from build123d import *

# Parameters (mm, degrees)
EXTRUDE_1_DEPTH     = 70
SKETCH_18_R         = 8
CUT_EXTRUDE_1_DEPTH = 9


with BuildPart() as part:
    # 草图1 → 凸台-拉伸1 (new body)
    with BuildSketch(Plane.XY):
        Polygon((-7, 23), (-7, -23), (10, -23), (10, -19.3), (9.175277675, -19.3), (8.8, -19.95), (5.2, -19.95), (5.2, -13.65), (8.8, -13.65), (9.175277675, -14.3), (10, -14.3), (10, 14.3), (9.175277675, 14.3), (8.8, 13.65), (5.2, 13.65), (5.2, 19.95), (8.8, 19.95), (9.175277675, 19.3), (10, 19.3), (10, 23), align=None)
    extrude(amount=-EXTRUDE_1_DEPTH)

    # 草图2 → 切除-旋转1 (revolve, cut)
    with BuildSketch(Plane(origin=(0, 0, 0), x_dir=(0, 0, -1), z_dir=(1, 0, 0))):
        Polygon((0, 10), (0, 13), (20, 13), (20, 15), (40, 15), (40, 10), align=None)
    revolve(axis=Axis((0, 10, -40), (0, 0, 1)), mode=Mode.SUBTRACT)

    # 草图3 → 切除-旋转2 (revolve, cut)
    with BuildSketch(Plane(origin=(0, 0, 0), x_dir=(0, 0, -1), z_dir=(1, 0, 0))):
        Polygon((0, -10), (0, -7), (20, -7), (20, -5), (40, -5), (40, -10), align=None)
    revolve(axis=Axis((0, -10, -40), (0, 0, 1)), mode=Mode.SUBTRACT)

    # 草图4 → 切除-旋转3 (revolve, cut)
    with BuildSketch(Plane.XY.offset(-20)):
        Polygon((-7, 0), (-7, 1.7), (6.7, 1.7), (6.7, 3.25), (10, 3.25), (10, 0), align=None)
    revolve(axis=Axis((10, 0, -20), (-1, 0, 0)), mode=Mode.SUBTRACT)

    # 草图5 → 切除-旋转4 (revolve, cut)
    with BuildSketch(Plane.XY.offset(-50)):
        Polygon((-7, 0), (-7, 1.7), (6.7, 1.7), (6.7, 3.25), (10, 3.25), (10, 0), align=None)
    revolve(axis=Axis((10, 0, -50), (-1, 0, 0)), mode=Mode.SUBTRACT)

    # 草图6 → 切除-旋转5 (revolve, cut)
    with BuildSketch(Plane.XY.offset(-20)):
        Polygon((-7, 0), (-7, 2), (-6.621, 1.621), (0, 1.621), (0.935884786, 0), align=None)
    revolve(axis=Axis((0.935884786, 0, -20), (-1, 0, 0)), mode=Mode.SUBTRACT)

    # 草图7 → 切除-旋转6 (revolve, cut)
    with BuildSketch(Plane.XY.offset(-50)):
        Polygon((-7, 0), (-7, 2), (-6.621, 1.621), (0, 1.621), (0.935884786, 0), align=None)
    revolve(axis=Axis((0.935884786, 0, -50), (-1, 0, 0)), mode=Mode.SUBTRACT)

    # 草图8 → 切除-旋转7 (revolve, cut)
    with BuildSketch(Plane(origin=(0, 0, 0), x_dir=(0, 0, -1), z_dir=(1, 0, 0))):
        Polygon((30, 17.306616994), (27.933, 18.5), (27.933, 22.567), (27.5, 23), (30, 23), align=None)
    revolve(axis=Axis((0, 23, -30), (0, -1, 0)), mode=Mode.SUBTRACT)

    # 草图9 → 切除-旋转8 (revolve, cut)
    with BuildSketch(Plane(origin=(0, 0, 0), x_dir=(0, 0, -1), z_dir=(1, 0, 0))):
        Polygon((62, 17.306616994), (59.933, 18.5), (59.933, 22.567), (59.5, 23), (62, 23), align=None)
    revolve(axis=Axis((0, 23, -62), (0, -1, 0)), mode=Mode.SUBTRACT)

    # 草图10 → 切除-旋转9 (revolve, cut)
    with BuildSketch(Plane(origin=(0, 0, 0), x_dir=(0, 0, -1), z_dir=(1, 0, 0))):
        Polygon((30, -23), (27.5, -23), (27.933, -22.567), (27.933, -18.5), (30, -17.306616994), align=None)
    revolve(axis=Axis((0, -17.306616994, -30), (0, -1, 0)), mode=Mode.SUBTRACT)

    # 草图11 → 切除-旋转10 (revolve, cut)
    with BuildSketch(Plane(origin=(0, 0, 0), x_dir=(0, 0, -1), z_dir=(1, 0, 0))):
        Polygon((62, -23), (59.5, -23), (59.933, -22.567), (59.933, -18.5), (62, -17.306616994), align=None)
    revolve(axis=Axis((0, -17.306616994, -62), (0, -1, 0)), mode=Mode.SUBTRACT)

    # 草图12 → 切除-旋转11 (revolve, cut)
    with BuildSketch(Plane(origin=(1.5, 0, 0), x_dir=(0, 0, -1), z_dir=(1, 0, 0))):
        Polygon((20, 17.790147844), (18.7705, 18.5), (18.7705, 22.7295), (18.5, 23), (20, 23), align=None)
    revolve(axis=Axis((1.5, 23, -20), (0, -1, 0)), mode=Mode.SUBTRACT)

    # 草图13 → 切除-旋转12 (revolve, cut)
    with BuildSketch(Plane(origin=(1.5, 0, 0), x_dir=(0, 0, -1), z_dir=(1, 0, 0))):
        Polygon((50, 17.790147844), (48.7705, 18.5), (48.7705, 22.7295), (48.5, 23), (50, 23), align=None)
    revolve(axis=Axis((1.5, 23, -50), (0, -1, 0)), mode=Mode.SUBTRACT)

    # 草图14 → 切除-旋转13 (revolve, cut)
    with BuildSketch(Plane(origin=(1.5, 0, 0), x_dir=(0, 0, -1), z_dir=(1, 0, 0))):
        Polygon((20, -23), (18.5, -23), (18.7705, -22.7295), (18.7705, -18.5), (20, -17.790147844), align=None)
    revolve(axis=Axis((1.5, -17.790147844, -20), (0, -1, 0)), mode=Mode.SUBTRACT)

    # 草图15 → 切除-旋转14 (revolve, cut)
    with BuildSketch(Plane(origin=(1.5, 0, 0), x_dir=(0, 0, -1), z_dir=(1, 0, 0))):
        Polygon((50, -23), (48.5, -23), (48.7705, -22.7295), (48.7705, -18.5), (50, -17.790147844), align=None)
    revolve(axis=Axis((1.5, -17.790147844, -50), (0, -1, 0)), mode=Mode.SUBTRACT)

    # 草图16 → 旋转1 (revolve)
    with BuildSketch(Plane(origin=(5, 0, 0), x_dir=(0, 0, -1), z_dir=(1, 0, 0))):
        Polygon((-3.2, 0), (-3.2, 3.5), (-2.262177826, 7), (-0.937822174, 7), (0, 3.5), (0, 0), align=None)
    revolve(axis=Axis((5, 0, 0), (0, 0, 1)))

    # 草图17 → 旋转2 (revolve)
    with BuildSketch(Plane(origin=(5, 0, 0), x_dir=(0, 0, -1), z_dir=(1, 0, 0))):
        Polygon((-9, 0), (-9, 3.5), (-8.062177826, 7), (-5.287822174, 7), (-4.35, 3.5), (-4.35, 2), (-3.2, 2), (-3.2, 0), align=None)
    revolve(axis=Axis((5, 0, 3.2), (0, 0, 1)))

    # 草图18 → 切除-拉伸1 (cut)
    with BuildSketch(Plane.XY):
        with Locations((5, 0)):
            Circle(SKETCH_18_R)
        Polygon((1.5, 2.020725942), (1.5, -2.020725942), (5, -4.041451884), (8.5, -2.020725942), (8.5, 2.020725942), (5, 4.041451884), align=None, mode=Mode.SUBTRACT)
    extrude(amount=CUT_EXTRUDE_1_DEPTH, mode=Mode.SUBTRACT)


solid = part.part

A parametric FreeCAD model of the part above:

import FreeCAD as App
import Part
import Sketcher
Q = App.Units.Quantity

doc = App.newDocument("Part")
body = doc.addObject("PartDesign::Body", "Body")

sketch1 = body.newObject("Sketcher::SketchObject", "Sketch")
sketch1.AttachmentSupport = (doc.getObject("XY_Plane"), [""])
sketch1.MapMode = "FlatFace"
sketch1.addGeometry([
    Part.LineSegment(App.Vector(-7, 23, 0), App.Vector(-7, -23, 0)),
    Part.LineSegment(App.Vector(-7, -23, 0), App.Vector(10, -23, 0)),
    Part.LineSegment(App.Vector(10, -23, 0), App.Vector(10, -19.3, 0)),
    Part.LineSegment(App.Vector(10, -19.3, 0), App.Vector(9.2, -19.3, 0)),
    Part.LineSegment(App.Vector(9.2, -19.3, 0), App.Vector(8.8, -19.9, 0)),
    Part.LineSegment(App.Vector(8.8, -19.9, 0), App.Vector(5.2, -19.9, 0)),
    Part.LineSegment(App.Vector(5.2, -19.9, 0), App.Vector(5.2, -13.7, 0)),
    Part.LineSegment(App.Vector(5.2, -13.7, 0), App.Vector(8.8, -13.7, 0)),
    Part.LineSegment(App.Vector(8.8, -13.7, 0), App.Vector(9.2, -14.3, 0)),
    Part.LineSegment(App.Vector(9.2, -14.3, 0), App.Vector(10, -14.3, 0)),
    Part.LineSegment(App.Vector(10, -14.3, 0), App.Vector(10, 14.3, 0)),
    Part.LineSegment(App.Vector(10, 14.3, 0), App.Vector(9.2, 14.3, 0)),
    Part.LineSegment(App.Vector(9.2, 14.3, 0), App.Vector(8.8, 13.7, 0)),
    Part.LineSegment(App.Vector(8.8, 13.7, 0), App.Vector(5.2, 13.7, 0)),
    Part.LineSegment(App.Vector(5.2, 13.7, 0), App.Vector(5.2, 19.9, 0)),
    Part.LineSegment(App.Vector(5.2, 19.9, 0), App.Vector(8.8, 19.9, 0)),
    Part.LineSegment(App.Vector(8.8, 19.9, 0), App.Vector(9.2, 19.3, 0)),
    Part.LineSegment(App.Vector(9.2, 19.3, 0), App.Vector(10, 19.3, 0)),
    Part.LineSegment(App.Vector(10, 19.3, 0), App.Vector(10, 23, 0)),
    Part.LineSegment(App.Vector(10, 23, 0), App.Vector(-7, 23, 0)),
], False)
sketch1.addConstraint([
    Sketcher.Constraint("Coincident", 0, 2, 1, 1),
    Sketcher.Constraint("Coincident", 1, 2, 2, 1),
    Sketcher.Constraint("Coincident", 2, 2, 3, 1),
    Sketcher.Constraint("Coincident", 3, 2, 4, 1),
    Sketcher.Constraint("Coincident", 4, 2, 5, 1),
    Sketcher.Constraint("Coincident", 5, 2, 6, 1),
    Sketcher.Constraint("Coincident", 6, 2, 7, 1),
    Sketcher.Constraint("Coincident", 7, 2, 8, 1),
    Sketcher.Constraint("Coincident", 8, 2, 9, 1),
    Sketcher.Constraint("Coincident", 9, 2, 10, 1),
    Sketcher.Constraint("Coincident", 10, 2, 11, 1),
    Sketcher.Constraint("Coincident", 11, 2, 12, 1),
    Sketcher.Constraint("Coincident", 12, 2, 13, 1),
    Sketcher.Constraint("Coincident", 13, 2, 14, 1),
    Sketcher.Constraint("Coincident", 14, 2, 15, 1),
    Sketcher.Constraint("Coincident", 15, 2, 16, 1),
    Sketcher.Constraint("Coincident", 16, 2, 17, 1),
    Sketcher.Constraint("Coincident", 17, 2, 18, 1),
    Sketcher.Constraint("Coincident", 18, 2, 19, 1),
    Sketcher.Constraint("Coincident", 19, 2, 0, 1),
    Sketcher.Constraint("Vertical", 0),
    Sketcher.Constraint("Horizontal", 1),
    Sketcher.Constraint("Vertical", 2),
    Sketcher.Constraint("Horizontal", 3),
    Sketcher.Constraint("Horizontal", 5),
    Sketcher.Constraint("Vertical", 6),
    Sketcher.Constraint("Horizontal", 7),
    Sketcher.Constraint("Horizontal", 9),
    Sketcher.Constraint("Vertical", 10),
    Sketcher.Constraint("Horizontal", 11),
    Sketcher.Constraint("Horizontal", 13),
    Sketcher.Constraint("Vertical", 14),
    Sketcher.Constraint("Horizontal", 15),
    Sketcher.Constraint("Horizontal", 17),
    Sketcher.Constraint("Vertical", 18),
    Sketcher.Constraint("Horizontal", 19),
    Sketcher.Constraint("Symmetric", 8, 2, 11, 2, -1),
    Sketcher.Constraint("Symmetric", 7, 2, 12, 2, -1),
    Sketcher.Constraint("Symmetric", 5, 2, 14, 2, -1),
    Sketcher.Constraint("Symmetric", 3, 2, 16, 2, -1),
    Sketcher.Constraint("Symmetric", 1, 2, 18, 2, -1),
    Sketcher.Constraint("Parallel", 4, 12),
    Sketcher.Constraint("Parallel", 8, 16),
    Sketcher.Constraint("Vertical", 4, 2, 7, 2),
    Sketcher.Constraint("Vertical", 3, 2, 8, 2),
    Sketcher.Constraint("Vertical", 2, 2, 9, 2),
    Sketcher.Constraint("DistanceX", 1, 1, 1, 2, Q("17 mm")),
    Sketcher.Constraint("DistanceY", 0, 2, 0, 1, Q("46 mm")),
    Sketcher.Constraint("Angle", 4, Q("-120 deg")),
    Sketcher.Constraint("DistanceX", 5, 2, 5, 1, Q("3.6 mm")),
    Sketcher.Constraint("DistanceY", 2, 1, 2, 2, Q("3.7 mm")),
    Sketcher.Constraint("DistanceY", 6, 1, 6, 2, Q("6.3 mm")),
    Sketcher.Constraint("DistanceY", 10, 1, 10, 2, Q("28.6 mm")),
    Sketcher.Constraint("DistanceX", 0, 2, -1, 1, Q("7 mm")),
    Sketcher.Constraint("DistanceX", -1, 1, 4, 2, Q("8.8 mm")),
])
pad1 = body.newObject("PartDesign::Pad", "Pad")
pad1.Profile = sketch1
pad1.Length = 70
pad1.Reversed = True

sketch2 = body.newObject("Sketcher::SketchObject", "Sketch001")
sketch2.AttachmentSupport = (doc.getObject("YZ_Plane"), [""])
sketch2.MapMode = "FlatFace"
sketch2.addGeometry([
    Part.LineSegment(App.Vector(13, 0, 0), App.Vector(10, 0, 0)),
    Part.LineSegment(App.Vector(10, 0, 0), App.Vector(10, -40, 0)),
    Part.LineSegment(App.Vector(10, -40, 0), App.Vector(15, -40, 0)),
    Part.LineSegment(App.Vector(15, -40, 0), App.Vector(15, -20, 0)),
    Part.LineSegment(App.Vector(15, -20, 0), App.Vector(13, -20, 0)),
    Part.LineSegment(App.Vector(13, -20, 0), App.Vector(13, 0, 0)),
], False)
sketch2.addGeometry(Part.LineSegment(App.Vector(10, -40, 0), App.Vector(10, 0, 0)), True)
sketch2.addConstraint([
    Sketcher.Constraint("Coincident", 0, 2, 1, 1),
    Sketcher.Constraint("Coincident", 1, 2, 2, 1),
    Sketcher.Constraint("Coincident", 2, 2, 3, 1),
    Sketcher.Constraint("Coincident", 3, 2, 4, 1),
    Sketcher.Constraint("Coincident", 4, 2, 5, 1),
    Sketcher.Constraint("Coincident", 5, 2, 0, 1),
    Sketcher.Constraint("Horizontal", 0),
    Sketcher.Constraint("Vertical", 1),
    Sketcher.Constraint("Horizontal", 2),
    Sketcher.Constraint("Vertical", 3),
    Sketcher.Constraint("Horizontal", 4),
    Sketcher.Constraint("Vertical", 5),
    Sketcher.Constraint("Vertical", 6),
    Sketcher.Constraint("Coincident", 6, 1, 1, 2),
    Sketcher.Constraint("PointOnObject", 0, 2, -1),
    Sketcher.Constraint("PointOnObject", 6, 2, -1),
    Sketcher.Constraint("Equal", 3, 5),
    Sketcher.Constraint("DistanceX", 0, 2, 0, 1, Q("3 mm")),
    Sketcher.Constraint("DistanceX", 2, 1, 2, 2, Q("5 mm")),
    Sketcher.Constraint("DistanceY", 1, 2, 1, 1, Q("40 mm")),
    Sketcher.Constraint("DistanceX", -1, 1, 0, 2, Q("10 mm")),
])
groove = body.newObject("PartDesign::Groove", "Groove")
groove.Profile = sketch2
groove.ReferenceAxis = (sketch2, ["Axis0"])
groove.Angle = 360

sketch3 = body.newObject("Sketcher::SketchObject", "Sketch002")
sketch3.AttachmentSupport = (doc.getObject("YZ_Plane"), [""])
sketch3.MapMode = "FlatFace"
sketch3.addGeometry([
    Part.LineSegment(App.Vector(-7, 0, 0), App.Vector(-10, 0, 0)),
    Part.LineSegment(App.Vector(-10, 0, 0), App.Vector(-10, -40, 0)),
    Part.LineSegment(App.Vector(-10, -40, 0), App.Vector(-5, -40, 0)),
    Part.LineSegment(App.Vector(-5, -40, 0), App.Vector(-5, -20, 0)),
    Part.LineSegment(App.Vector(-5, -20, 0), App.Vector(-7, -20, 0)),
    Part.LineSegment(App.Vector(-7, -20, 0), App.Vector(-7, 0, 0)),
], False)
sketch3.addGeometry(Part.LineSegment(App.Vector(-10, -40, 0), App.Vector(-10, 0, 0)), True)
sketch3.addConstraint([
    Sketcher.Constraint("Coincident", 0, 2, 1, 1),
    Sketcher.Constraint("Coincident", 1, 2, 2, 1),
    Sketcher.Constraint("Coincident", 2, 2, 3, 1),
    Sketcher.Constraint("Coincident", 3, 2, 4, 1),
    Sketcher.Constraint("Coincident", 4, 2, 5, 1),
    Sketcher.Constraint("Coincident", 5, 2, 0, 1),
    Sketcher.Constraint("Horizontal", 0),
    Sketcher.Constraint("Vertical", 1),
    Sketcher.Constraint("Horizontal", 2),
    Sketcher.Constraint("Vertical", 3),
    Sketcher.Constraint("Horizontal", 4),
    Sketcher.Constraint("Vertical", 5),
    Sketcher.Constraint("Vertical", 6),
    Sketcher.Constraint("Coincident", 6, 1, 1, 2),
    Sketcher.Constraint("PointOnObject", 0, 2, -1),
    Sketcher.Constraint("PointOnObject", 6, 2, -1),
    Sketcher.Constraint("Equal", 3, 5),
    Sketcher.Constraint("DistanceX", 0, 2, 0, 1, Q("3 mm")),
    Sketcher.Constraint("DistanceX", 2, 1, 2, 2, Q("5 mm")),
    Sketcher.Constraint("DistanceY", 1, 2, 1, 1, Q("40 mm")),
    Sketcher.Constraint("DistanceX", 0, 2, -1, 1, Q("10 mm")),
])
groove2 = body.newObject("PartDesign::Groove", "Groove001")
groove2.Profile = sketch3
groove2.ReferenceAxis = (sketch3, ["Axis0"])
groove2.Angle = 360

sketch4 = body.newObject("Sketcher::SketchObject", "Sketch003")
sketch4.AttachmentSupport = (doc.getObject("XY_Plane"), [""])
sketch4.MapMode = "FlatFace"
sketch4.AttachmentOffset = App.Placement(App.Vector(0, 0, -20), App.Rotation())
sketch4.addGeometry([
    Part.LineSegment(App.Vector(-7, 1.7, 0), App.Vector(-7, 0, 0)),
    Part.LineSegment(App.Vector(-7, 0, 0), App.Vector(10, 0, 0)),
    Part.LineSegment(App.Vector(10, 0, 0), App.Vector(10, 3.2, 0)),
    Part.LineSegment(App.Vector(10, 3.2, 0), App.Vector(6.7, 3.2, 0)),
    Part.LineSegment(App.Vector(6.7, 3.2, 0), App.Vector(6.7, 1.7, 0)),
    Part.LineSegment(App.Vector(6.7, 1.7, 0), App.Vector(-7, 1.7, 0)),
], False)
sketch4.addConstraint([
    Sketcher.Constraint("Coincident", 0, 2, 1, 1),
    Sketcher.Constraint("Coincident", 1, 2, 2, 1),
    Sketcher.Constraint("Coincident", 2, 2, 3, 1),
    Sketcher.Constraint("Coincident", 3, 2, 4, 1),
    Sketcher.Constraint("Coincident", 4, 2, 5, 1),
    Sketcher.Constraint("Coincident", 5, 2, 0, 1),
    Sketcher.Constraint("Vertical", 0),
    Sketcher.Constraint("Horizontal", 1),
    Sketcher.Constraint("Vertical", 2),
    Sketcher.Constraint("Horizontal", 3),
    Sketcher.Constraint("Vertical", 4),
    Sketcher.Constraint("Horizontal", 5),
    Sketcher.Constraint("PointOnObject", 0, 2, -1),
    Sketcher.Constraint("DistanceX", 1, 1, 1, 2, Q("17 mm")),
    Sketcher.Constraint("DistanceX", 3, 2, 3, 1, Q("3.3 mm")),
    Sketcher.Constraint("DistanceY", 0, 2, 0, 1, Q("1.7 mm")),
    Sketcher.Constraint("DistanceX", 0, 2, -1, 1, Q("7 mm")),
    Sketcher.Constraint("DistanceY", 2, 1, 2, 2, Q("3.25 mm")),
])
groove3 = body.newObject("PartDesign::Groove", "Groove002")
groove3.Profile = sketch4
groove3.ReferenceAxis = (sketch4, ["H_Axis"])
groove3.Angle = 360

sketch5 = body.newObject("Sketcher::SketchObject", "Sketch004")
sketch5.AttachmentSupport = (doc.getObject("XY_Plane"), [""])
sketch5.MapMode = "FlatFace"
sketch5.AttachmentOffset = App.Placement(App.Vector(0, 0, -50), App.Rotation())
sketch5.addGeometry([
    Part.LineSegment(App.Vector(-7, 1.7, 0), App.Vector(-7, 0, 0)),
    Part.LineSegment(App.Vector(-7, 0, 0), App.Vector(10, 0, 0)),
    Part.LineSegment(App.Vector(10, 0, 0), App.Vector(10, 3.2, 0)),
    Part.LineSegment(App.Vector(10, 3.2, 0), App.Vector(6.7, 3.2, 0)),
    Part.LineSegment(App.Vector(6.7, 3.2, 0), App.Vector(6.7, 1.7, 0)),
    Part.LineSegment(App.Vector(6.7, 1.7, 0), App.Vector(-7, 1.7, 0)),
], False)
sketch5.addConstraint([
    Sketcher.Constraint("Coincident", 0, 2, 1, 1),
    Sketcher.Constraint("Coincident", 1, 2, 2, 1),
    Sketcher.Constraint("Coincident", 2, 2, 3, 1),
    Sketcher.Constraint("Coincident", 3, 2, 4, 1),
    Sketcher.Constraint("Coincident", 4, 2, 5, 1),
    Sketcher.Constraint("Coincident", 5, 2, 0, 1),
    Sketcher.Constraint("Vertical", 0),
    Sketcher.Constraint("Horizontal", 1),
    Sketcher.Constraint("Vertical", 2),
    Sketcher.Constraint("Horizontal", 3),
    Sketcher.Constraint("Vertical", 4),
    Sketcher.Constraint("Horizontal", 5),
    Sketcher.Constraint("PointOnObject", 0, 2, -1),
    Sketcher.Constraint("DistanceX", 1, 1, 1, 2, Q("17 mm")),
    Sketcher.Constraint("DistanceX", 3, 2, 3, 1, Q("3.3 mm")),
    Sketcher.Constraint("DistanceY", 0, 2, 0, 1, Q("1.7 mm")),
    Sketcher.Constraint("DistanceX", 0, 2, -1, 1, Q("7 mm")),
    Sketcher.Constraint("DistanceY", 2, 1, 2, 2, Q("3.25 mm")),
])
groove4 = body.newObject("PartDesign::Groove", "Groove003")
groove4.Profile = sketch5
groove4.ReferenceAxis = (sketch5, ["H_Axis"])
groove4.Angle = 360

sketch6 = body.newObject("Sketcher::SketchObject", "Sketch005")
sketch6.AttachmentSupport = (doc.getObject("XY_Plane"), [""])
sketch6.MapMode = "FlatFace"
sketch6.AttachmentOffset = App.Placement(App.Vector(0, 0, -20), App.Rotation())
sketch6.addGeometry([
    Part.LineSegment(App.Vector(-7, 2, 0), App.Vector(-7, 0, 0)),
    Part.LineSegment(App.Vector(-7, 0, 0), App.Vector(0.9, 0, 0)),
    Part.LineSegment(App.Vector(0.9, 0, 0), App.Vector(0, 1.6, 0)),
    Part.LineSegment(App.Vector(0, 1.6, 0), App.Vector(-6.6, 1.6, 0)),
    Part.LineSegment(App.Vector(-6.6, 1.6, 0), App.Vector(-7, 2, 0)),
], False)
sketch6.addConstraint([
    Sketcher.Constraint("Coincident", 0, 2, 1, 1),
    Sketcher.Constraint("Coincident", 1, 2, 2, 1),
    Sketcher.Constraint("Coincident", 2, 2, 3, 1),
    Sketcher.Constraint("Coincident", 3, 2, 4, 1),
    Sketcher.Constraint("Coincident", 4, 2, 0, 1),
    Sketcher.Constraint("Vertical", 0),
    Sketcher.Constraint("Horizontal", 1),
    Sketcher.Constraint("Horizontal", 3),
    Sketcher.Constraint("PointOnObject", 0, 2, -1),
    Sketcher.Constraint("PointOnObject", 2, 2, -2),
    Sketcher.Constraint("DistanceY", 0, 2, 0, 1, Q("2 mm")),
    Sketcher.Constraint("Angle", 2, Q("120 deg")),
    Sketcher.Constraint("Angle", 4, Q("135 deg")),
    Sketcher.Constraint("DistanceX", 0, 2, -1, 1, Q("7 mm")),
    Sketcher.Constraint("DistanceX", 3, 2, 3, 1, Q("6.621 mm")),
])
groove5 = body.newObject("PartDesign::Groove", "Groove004")
groove5.Profile = sketch6
groove5.ReferenceAxis = (sketch6, ["H_Axis"])
groove5.Angle = 360

sketch7 = body.newObject("Sketcher::SketchObject", "Sketch006")
sketch7.AttachmentSupport = (doc.getObject("XY_Plane"), [""])
sketch7.MapMode = "FlatFace"
sketch7.AttachmentOffset = App.Placement(App.Vector(0, 0, -50), App.Rotation())
sketch7.addGeometry([
    Part.LineSegment(App.Vector(-7, 2, 0), App.Vector(-7, 0, 0)),
    Part.LineSegment(App.Vector(-7, 0, 0), App.Vector(0.9, 0, 0)),
    Part.LineSegment(App.Vector(0.9, 0, 0), App.Vector(0, 1.6, 0)),
    Part.LineSegment(App.Vector(0, 1.6, 0), App.Vector(-6.6, 1.6, 0)),
    Part.LineSegment(App.Vector(-6.6, 1.6, 0), App.Vector(-7, 2, 0)),
], False)
sketch7.addConstraint([
    Sketcher.Constraint("Coincident", 0, 2, 1, 1),
    Sketcher.Constraint("Coincident", 1, 2, 2, 1),
    Sketcher.Constraint("Coincident", 2, 2, 3, 1),
    Sketcher.Constraint("Coincident", 3, 2, 4, 1),
    Sketcher.Constraint("Coincident", 4, 2, 0, 1),
    Sketcher.Constraint("Vertical", 0),
    Sketcher.Constraint("Horizontal", 1),
    Sketcher.Constraint("Horizontal", 3),
    Sketcher.Constraint("PointOnObject", 0, 2, -1),
    Sketcher.Constraint("PointOnObject", 2, 2, -2),
    Sketcher.Constraint("DistanceY", 0, 2, 0, 1, Q("2 mm")),
    Sketcher.Constraint("Angle", 2, Q("120 deg")),
    Sketcher.Constraint("Angle", 4, Q("135 deg")),
    Sketcher.Constraint("DistanceX", 0, 2, -1, 1, Q("7 mm")),
    Sketcher.Constraint("DistanceX", 3, 2, 3, 1, Q("6.621 mm")),
])
groove6 = body.newObject("PartDesign::Groove", "Groove005")
groove6.Profile = sketch7
groove6.ReferenceAxis = (sketch7, ["H_Axis"])
groove6.Angle = 360

sketch8 = body.newObject("Sketcher::SketchObject", "Sketch007")
sketch8.AttachmentSupport = (doc.getObject("YZ_Plane"), [""])
sketch8.MapMode = "FlatFace"
sketch8.addGeometry([
    Part.LineSegment(App.Vector(18.5, -27.9, 0), App.Vector(17.3, -30, 0)),
    Part.LineSegment(App.Vector(17.3, -30, 0), App.Vector(23, -30, 0)),
    Part.LineSegment(App.Vector(23, -30, 0), App.Vector(23, -27.5, 0)),
    Part.LineSegment(App.Vector(23, -27.5, 0), App.Vector(22.6, -27.9, 0)),
    Part.LineSegment(App.Vector(22.6, -27.9, 0), App.Vector(18.5, -27.9, 0)),
], False)
sketch8.addGeometry(Part.LineSegment(App.Vector(23, -30, 0), App.Vector(17.3, -30, 0)), True)
sketch8.addConstraint([
    Sketcher.Constraint("Coincident", 0, 2, 1, 1),
    Sketcher.Constraint("Coincident", 1, 2, 2, 1),
    Sketcher.Constraint("Coincident", 2, 2, 3, 1),
    Sketcher.Constraint("Coincident", 3, 2, 4, 1),
    Sketcher.Constraint("Coincident", 4, 2, 0, 1),
    Sketcher.Constraint("Horizontal", 1),
    Sketcher.Constraint("Vertical", 2),
    Sketcher.Constraint("Horizontal", 4),
    Sketcher.Constraint("Horizontal", 5),
    Sketcher.Constraint("Coincident", 5, 1, 1, 2),
    Sketcher.Constraint("Equal", 1, 5),
    Sketcher.Constraint("Angle", 0, Q("-120 deg")),
    Sketcher.Constraint("Angle", 3, Q("-135 deg")),
    Sketcher.Constraint("DistanceY", 2, 1, 2, 2, Q("2.5 mm")),
    Sketcher.Constraint("DistanceY", 0, 2, -1, 1, Q("30 mm")),
    Sketcher.Constraint("DistanceX", -1, 1, 1, 2, Q("23 mm")),
    Sketcher.Constraint("DistanceX", -1, 1, 4, 2, Q("18.5 mm")),
    Sketcher.Constraint("DistanceX", 4, 2, 4, 1, Q("4.067 mm")),
])
groove7 = body.newObject("PartDesign::Groove", "Groove006")
groove7.Profile = sketch8
groove7.ReferenceAxis = (sketch8, ["Axis0"])
groove7.Angle = 360

sketch9 = body.newObject("Sketcher::SketchObject", "Sketch008")
sketch9.AttachmentSupport = (doc.getObject("YZ_Plane"), [""])
sketch9.MapMode = "FlatFace"
sketch9.addGeometry([
    Part.LineSegment(App.Vector(18.5, -59.9, 0), App.Vector(17.3, -62, 0)),
    Part.LineSegment(App.Vector(17.3, -62, 0), App.Vector(23, -62, 0)),
    Part.LineSegment(App.Vector(23, -62, 0), App.Vector(23, -59.5, 0)),
    Part.LineSegment(App.Vector(23, -59.5, 0), App.Vector(22.6, -59.9, 0)),
    Part.LineSegment(App.Vector(22.6, -59.9, 0), App.Vector(18.5, -59.9, 0)),
], False)
sketch9.addGeometry(Part.LineSegment(App.Vector(23, -62, 0), App.Vector(17.3, -62, 0)), True)
sketch9.addConstraint([
    Sketcher.Constraint("Coincident", 0, 2, 1, 1),
    Sketcher.Constraint("Coincident", 1, 2, 2, 1),
    Sketcher.Constraint("Coincident", 2, 2, 3, 1),
    Sketcher.Constraint("Coincident", 3, 2, 4, 1),
    Sketcher.Constraint("Coincident", 4, 2, 0, 1),
    Sketcher.Constraint("Horizontal", 1),
    Sketcher.Constraint("Vertical", 2),
    Sketcher.Constraint("Horizontal", 4),
    Sketcher.Constraint("Horizontal", 5),
    Sketcher.Constraint("Coincident", 5, 1, 1, 2),
    Sketcher.Constraint("Equal", 1, 5),
    Sketcher.Constraint("Angle", 0, Q("-120 deg")),
    Sketcher.Constraint("Angle", 3, Q("-135 deg")),
    Sketcher.Constraint("DistanceY", 2, 1, 2, 2, Q("2.5 mm")),
    Sketcher.Constraint("DistanceY", 0, 2, -1, 1, Q("62 mm")),
    Sketcher.Constraint("DistanceX", -1, 1, 1, 2, Q("23 mm")),
    Sketcher.Constraint("DistanceX", -1, 1, 4, 2, Q("18.5 mm")),
    Sketcher.Constraint("DistanceX", 4, 2, 4, 1, Q("4.067 mm")),
])
groove8 = body.newObject("PartDesign::Groove", "Groove007")
groove8.Profile = sketch9
groove8.ReferenceAxis = (sketch9, ["Axis0"])
groove8.Angle = 360

sketch10 = body.newObject("Sketcher::SketchObject", "Sketch009")
sketch10.AttachmentSupport = (doc.getObject("YZ_Plane"), [""])
sketch10.MapMode = "FlatFace"
sketch10.addGeometry([
    Part.LineSegment(App.Vector(-23, -27.5, 0), App.Vector(-23, -30, 0)),
    Part.LineSegment(App.Vector(-23, -30, 0), App.Vector(-17.3, -30, 0)),
    Part.LineSegment(App.Vector(-17.3, -30, 0), App.Vector(-18.5, -27.9, 0)),
    Part.LineSegment(App.Vector(-18.5, -27.9, 0), App.Vector(-22.6, -27.9, 0)),
    Part.LineSegment(App.Vector(-22.6, -27.9, 0), App.Vector(-23, -27.5, 0)),
], False)
sketch10.addGeometry(Part.LineSegment(App.Vector(-17.3, -30, 0), App.Vector(-23, -30, 0)), True)
sketch10.addConstraint([
    Sketcher.Constraint("Coincident", 0, 2, 1, 1),
    Sketcher.Constraint("Coincident", 1, 2, 2, 1),
    Sketcher.Constraint("Coincident", 2, 2, 3, 1),
    Sketcher.Constraint("Coincident", 3, 2, 4, 1),
    Sketcher.Constraint("Coincident", 4, 2, 0, 1),
    Sketcher.Constraint("Vertical", 0),
    Sketcher.Constraint("Horizontal", 1),
    Sketcher.Constraint("Horizontal", 3),
    Sketcher.Constraint("Horizontal", 5),
    Sketcher.Constraint("Coincident", 5, 1, 1, 2),
    Sketcher.Constraint("Vertical", 4, 2, 5, 2),
    Sketcher.Constraint("Angle", 2, Q("120 deg")),
    Sketcher.Constraint("Angle", 4, Q("135 deg")),
    Sketcher.Constraint("DistanceY", 0, 2, 0, 1, Q("2.5 mm")),
    Sketcher.Constraint("DistanceX", 0, 2, -1, 1, Q("23 mm")),
    Sketcher.Constraint("DistanceY", 0, 2, -1, 1, Q("30 mm")),
    Sketcher.Constraint("DistanceX", 2, 2, -1, 1, Q("18.5 mm")),
    Sketcher.Constraint("DistanceX", 3, 2, 3, 1, Q("4.067 mm")),
])
groove9 = body.newObject("PartDesign::Groove", "Groove008")
groove9.Profile = sketch10
groove9.ReferenceAxis = (sketch10, ["Axis0"])
groove9.Angle = 360

sketch11 = body.newObject("Sketcher::SketchObject", "Sketch010")
sketch11.AttachmentSupport = (doc.getObject("YZ_Plane"), [""])
sketch11.MapMode = "FlatFace"
sketch11.addGeometry([
    Part.LineSegment(App.Vector(-23, -59.5, 0), App.Vector(-23, -62, 0)),
    Part.LineSegment(App.Vector(-23, -62, 0), App.Vector(-17.3, -62, 0)),
    Part.LineSegment(App.Vector(-17.3, -62, 0), App.Vector(-18.5, -59.9, 0)),
    Part.LineSegment(App.Vector(-18.5, -59.9, 0), App.Vector(-22.6, -59.9, 0)),
    Part.LineSegment(App.Vector(-22.6, -59.9, 0), App.Vector(-23, -59.5, 0)),
], False)
sketch11.addGeometry(Part.LineSegment(App.Vector(-17.3, -62, 0), App.Vector(-23, -62, 0)), True)
sketch11.addConstraint([
    Sketcher.Constraint("Coincident", 0, 2, 1, 1),
    Sketcher.Constraint("Coincident", 1, 2, 2, 1),
    Sketcher.Constraint("Coincident", 2, 2, 3, 1),
    Sketcher.Constraint("Coincident", 3, 2, 4, 1),
    Sketcher.Constraint("Coincident", 4, 2, 0, 1),
    Sketcher.Constraint("Vertical", 0),
    Sketcher.Constraint("Horizontal", 1),
    Sketcher.Constraint("Horizontal", 3),
    Sketcher.Constraint("Horizontal", 5),
    Sketcher.Constraint("Coincident", 5, 1, 1, 2),
    Sketcher.Constraint("Vertical", 4, 2, 5, 2),
    Sketcher.Constraint("Angle", 2, Q("120 deg")),
    Sketcher.Constraint("Angle", 4, Q("135 deg")),
    Sketcher.Constraint("DistanceY", 0, 2, 0, 1, Q("2.5 mm")),
    Sketcher.Constraint("DistanceX", 0, 2, -1, 1, Q("23 mm")),
    Sketcher.Constraint("DistanceY", 0, 2, -1, 1, Q("62 mm")),
    Sketcher.Constraint("DistanceX", 2, 2, -1, 1, Q("18.5 mm")),
    Sketcher.Constraint("DistanceX", 3, 2, 3, 1, Q("4.067 mm")),
])
groove10 = body.newObject("PartDesign::Groove", "Groove009")
groove10.Profile = sketch11
groove10.ReferenceAxis = (sketch11, ["Axis0"])
groove10.Angle = 360

sketch12 = body.newObject("Sketcher::SketchObject", "Sketch011")
sketch12.AttachmentSupport = (doc.getObject("YZ_Plane"), [""])
sketch12.MapMode = "FlatFace"
sketch12.AttachmentOffset = App.Placement(App.Vector(0, 0, 1.5), App.Rotation())
sketch12.addGeometry([
    Part.LineSegment(App.Vector(18.5, -18.77, 0), App.Vector(17.79, -20, 0)),
    Part.LineSegment(App.Vector(17.79, -20, 0), App.Vector(23, -20, 0)),
    Part.LineSegment(App.Vector(23, -20, 0), App.Vector(23, -18.5, 0)),
    Part.LineSegment(App.Vector(23, -18.5, 0), App.Vector(22.73, -18.77, 0)),
    Part.LineSegment(App.Vector(22.73, -18.77, 0), App.Vector(18.5, -18.77, 0)),
], False)
sketch12.addGeometry(Part.LineSegment(App.Vector(23, -20, 0), App.Vector(17.79, -20, 0)), True)
sketch12.addConstraint([
    Sketcher.Constraint("Coincident", 0, 2, 1, 1),
    Sketcher.Constraint("Coincident", 1, 2, 2, 1),
    Sketcher.Constraint("Coincident", 2, 2, 3, 1),
    Sketcher.Constraint("Coincident", 3, 2, 4, 1),
    Sketcher.Constraint("Coincident", 4, 2, 0, 1),
    Sketcher.Constraint("Horizontal", 1),
    Sketcher.Constraint("Vertical", 2),
    Sketcher.Constraint("Horizontal", 4),
    Sketcher.Constraint("Horizontal", 5),
    Sketcher.Constraint("Coincident", 5, 1, 1, 2),
    Sketcher.Constraint("Equal", 1, 5),
    Sketcher.Constraint("Angle", 0, Q("-120 deg")),
    Sketcher.Constraint("Angle", 3, Q("-135 deg")),
    Sketcher.Constraint("DistanceY", 2, 1, 2, 2, Q("1.5 mm")),
    Sketcher.Constraint("DistanceY", 0, 2, -1, 1, Q("20 mm")),
    Sketcher.Constraint("DistanceX", -1, 1, 1, 2, Q("23 mm")),
    Sketcher.Constraint("DistanceX", -1, 1, 4, 2, Q("18.5 mm")),
    Sketcher.Constraint("DistanceX", 4, 2, 4, 1, Q("4.2295 mm")),
])
groove11 = body.newObject("PartDesign::Groove", "Groove010")
groove11.Profile = sketch12
groove11.ReferenceAxis = (sketch12, ["Axis0"])
groove11.Angle = 360

sketch13 = body.newObject("Sketcher::SketchObject", "Sketch012")
sketch13.AttachmentSupport = (doc.getObject("YZ_Plane"), [""])
sketch13.MapMode = "FlatFace"
sketch13.AttachmentOffset = App.Placement(App.Vector(0, 0, 1.5), App.Rotation())
sketch13.addGeometry([
    Part.LineSegment(App.Vector(18.5, -48.77, 0), App.Vector(17.79, -50, 0)),
    Part.LineSegment(App.Vector(17.79, -50, 0), App.Vector(23, -50, 0)),
    Part.LineSegment(App.Vector(23, -50, 0), App.Vector(23, -48.5, 0)),
    Part.LineSegment(App.Vector(23, -48.5, 0), App.Vector(22.73, -48.77, 0)),
    Part.LineSegment(App.Vector(22.73, -48.77, 0), App.Vector(18.5, -48.77, 0)),
], False)
sketch13.addGeometry(Part.LineSegment(App.Vector(23, -50, 0), App.Vector(17.79, -50, 0)), True)
sketch13.addConstraint([
    Sketcher.Constraint("Coincident", 0, 2, 1, 1),
    Sketcher.Constraint("Coincident", 1, 2, 2, 1),
    Sketcher.Constraint("Coincident", 2, 2, 3, 1),
    Sketcher.Constraint("Coincident", 3, 2, 4, 1),
    Sketcher.Constraint("Coincident", 4, 2, 0, 1),
    Sketcher.Constraint("Horizontal", 1),
    Sketcher.Constraint("Vertical", 2),
    Sketcher.Constraint("Horizontal", 4),
    Sketcher.Constraint("Horizontal", 5),
    Sketcher.Constraint("Coincident", 5, 1, 1, 2),
    Sketcher.Constraint("Equal", 1, 5),
    Sketcher.Constraint("Angle", 0, Q("-120 deg")),
    Sketcher.Constraint("Angle", 3, Q("-135 deg")),
    Sketcher.Constraint("DistanceY", 2, 1, 2, 2, Q("1.5 mm")),
    Sketcher.Constraint("DistanceY", 0, 2, -1, 1, Q("50 mm")),
    Sketcher.Constraint("DistanceX", -1, 1, 1, 2, Q("23 mm")),
    Sketcher.Constraint("DistanceX", -1, 1, 4, 2, Q("18.5 mm")),
    Sketcher.Constraint("DistanceX", 4, 2, 4, 1, Q("4.2295 mm")),
])
groove12 = body.newObject("PartDesign::Groove", "Groove011")
groove12.Profile = sketch13
groove12.ReferenceAxis = (sketch13, ["Axis0"])
groove12.Angle = 360

sketch14 = body.newObject("Sketcher::SketchObject", "Sketch013")
sketch14.AttachmentSupport = (doc.getObject("YZ_Plane"), [""])
sketch14.MapMode = "FlatFace"
sketch14.AttachmentOffset = App.Placement(App.Vector(0, 0, 1.5), App.Rotation())
sketch14.addGeometry([
    Part.LineSegment(App.Vector(-23, -18.5, 0), App.Vector(-23, -20, 0)),
    Part.LineSegment(App.Vector(-23, -20, 0), App.Vector(-17.79, -20, 0)),
    Part.LineSegment(App.Vector(-17.79, -20, 0), App.Vector(-18.5, -18.77, 0)),
    Part.LineSegment(App.Vector(-18.5, -18.77, 0), App.Vector(-22.73, -18.77, 0)),
    Part.LineSegment(App.Vector(-22.73, -18.77, 0), App.Vector(-23, -18.5, 0)),
], False)
sketch14.addGeometry(Part.LineSegment(App.Vector(-17.79, -20, 0), App.Vector(-23, -20, 0)), True)
sketch14.addConstraint([
    Sketcher.Constraint("Coincident", 0, 2, 1, 1),
    Sketcher.Constraint("Coincident", 1, 2, 2, 1),
    Sketcher.Constraint("Coincident", 2, 2, 3, 1),
    Sketcher.Constraint("Coincident", 3, 2, 4, 1),
    Sketcher.Constraint("Coincident", 4, 2, 0, 1),
    Sketcher.Constraint("Vertical", 0),
    Sketcher.Constraint("Horizontal", 1),
    Sketcher.Constraint("Horizontal", 3),
    Sketcher.Constraint("Horizontal", 5),
    Sketcher.Constraint("Coincident", 5, 1, 1, 2),
    Sketcher.Constraint("Vertical", 4, 2, 5, 2),
    Sketcher.Constraint("Angle", 2, Q("120 deg")),
    Sketcher.Constraint("Angle", 4, Q("135 deg")),
    Sketcher.Constraint("DistanceY", 0, 2, 0, 1, Q("1.5 mm")),
    Sketcher.Constraint("DistanceX", 0, 2, -1, 1, Q("23 mm")),
    Sketcher.Constraint("DistanceY", 0, 2, -1, 1, Q("20 mm")),
    Sketcher.Constraint("DistanceX", 2, 2, -1, 1, Q("18.5 mm")),
    Sketcher.Constraint("DistanceX", 3, 2, 3, 1, Q("4.2295 mm")),
])
groove13 = body.newObject("PartDesign::Groove", "Groove012")
groove13.Profile = sketch14
groove13.ReferenceAxis = (sketch14, ["Axis0"])
groove13.Angle = 360

sketch15 = body.newObject("Sketcher::SketchObject", "Sketch014")
sketch15.AttachmentSupport = (doc.getObject("YZ_Plane"), [""])
sketch15.MapMode = "FlatFace"
sketch15.AttachmentOffset = App.Placement(App.Vector(0, 0, 1.5), App.Rotation())
sketch15.addGeometry([
    Part.LineSegment(App.Vector(-23, -48.5, 0), App.Vector(-23, -50, 0)),
    Part.LineSegment(App.Vector(-23, -50, 0), App.Vector(-17.79, -50, 0)),
    Part.LineSegment(App.Vector(-17.79, -50, 0), App.Vector(-18.5, -48.77, 0)),
    Part.LineSegment(App.Vector(-18.5, -48.77, 0), App.Vector(-22.73, -48.77, 0)),
    Part.LineSegment(App.Vector(-22.73, -48.77, 0), App.Vector(-23, -48.5, 0)),
], False)
sketch15.addGeometry(Part.LineSegment(App.Vector(-17.79, -50, 0), App.Vector(-23, -50, 0)), True)
sketch15.addConstraint([
    Sketcher.Constraint("Coincident", 0, 2, 1, 1),
    Sketcher.Constraint("Coincident", 1, 2, 2, 1),
    Sketcher.Constraint("Coincident", 2, 2, 3, 1),
    Sketcher.Constraint("Coincident", 3, 2, 4, 1),
    Sketcher.Constraint("Coincident", 4, 2, 0, 1),
    Sketcher.Constraint("Vertical", 0),
    Sketcher.Constraint("Horizontal", 1),
    Sketcher.Constraint("Horizontal", 3),
    Sketcher.Constraint("Horizontal", 5),
    Sketcher.Constraint("Coincident", 5, 1, 1, 2),
    Sketcher.Constraint("Vertical", 4, 2, 5, 2),
    Sketcher.Constraint("Angle", 2, Q("120 deg")),
    Sketcher.Constraint("Angle", 4, Q("135 deg")),
    Sketcher.Constraint("DistanceY", 0, 2, 0, 1, Q("1.5 mm")),
    Sketcher.Constraint("DistanceX", 0, 2, -1, 1, Q("23 mm")),
    Sketcher.Constraint("DistanceY", 0, 2, -1, 1, Q("50 mm")),
    Sketcher.Constraint("DistanceX", 2, 2, -1, 1, Q("18.5 mm")),
    Sketcher.Constraint("DistanceX", 3, 2, 3, 1, Q("4.2295 mm")),
])
groove14 = body.newObject("PartDesign::Groove", "Groove013")
groove14.Profile = sketch15
groove14.ReferenceAxis = (sketch15, ["Axis0"])
groove14.Angle = 360

sketch16 = body.newObject("Sketcher::SketchObject", "Sketch015")
sketch16.AttachmentSupport = (doc.getObject("YZ_Plane"), [""])
sketch16.MapMode = "FlatFace"
sketch16.AttachmentOffset = App.Placement(App.Vector(0, 0, 5), App.Rotation())
sketch16.addGeometry([
    Part.LineSegment(App.Vector(3.5, 3.2, 0), App.Vector(0, 3.2, 0)),
    Part.LineSegment(App.Vector(0, 3.2, 0), App.Vector(0, 0, 0)),
    Part.LineSegment(App.Vector(0, 0, 0), App.Vector(3.5, 0, 0)),
    Part.LineSegment(App.Vector(3.5, 0, 0), App.Vector(7, 0.9, 0)),
    Part.LineSegment(App.Vector(7, 0.9, 0), App.Vector(7, 2.3, 0)),
    Part.LineSegment(App.Vector(7, 2.3, 0), App.Vector(3.5, 3.2, 0)),
], False)
sketch16.addConstraint([
    Sketcher.Constraint("Coincident", 0, 2, 1, 1),
    Sketcher.Constraint("Coincident", 1, 2, 2, 1),
    Sketcher.Constraint("Coincident", 2, 2, 3, 1),
    Sketcher.Constraint("Coincident", 3, 2, 4, 1),
    Sketcher.Constraint("Coincident", 4, 2, 5, 1),
    Sketcher.Constraint("Coincident", 5, 2, 0, 1),
    Sketcher.Constraint("Horizontal", 0),
    Sketcher.Constraint("Vertical", 1),
    Sketcher.Constraint("Horizontal", 2),
    Sketcher.Constraint("Vertical", 4),
    Sketcher.Constraint("Coincident", 1, 2, -1, 1),
    Sketcher.Constraint("Vertical", 2, 2, 5, 2),
    Sketcher.Constraint("Equal", 3, 5),
    Sketcher.Constraint("Angle", 3, Q("15 deg")),
    Sketcher.Constraint("DistanceX", 0, 2, 0, 1, Q("3.5 mm")),
    Sketcher.Constraint("DistanceY", 1, 2, 1, 1, Q("3.2 mm")),
    Sketcher.Constraint("DistanceX", -1, 1, 3, 2, Q("7 mm")),
])
revolution = body.newObject("PartDesign::Revolution", "Revolution")
revolution.Profile = sketch16
revolution.ReferenceAxis = (sketch16, ["V_Axis"])
revolution.Angle = 360

sketch17 = body.newObject("Sketcher::SketchObject", "Sketch016")
sketch17.AttachmentSupport = (doc.getObject("YZ_Plane"), [""])
sketch17.MapMode = "FlatFace"
sketch17.AttachmentOffset = App.Placement(App.Vector(0, 0, 5), App.Rotation())
sketch17.addGeometry([
    Part.LineSegment(App.Vector(3.5, 9, 0), App.Vector(0, 9, 0)),
    Part.LineSegment(App.Vector(0, 9, 0), App.Vector(0, 3.2, 0)),
    Part.LineSegment(App.Vector(0, 3.2, 0), App.Vector(2, 3.2, 0)),
    Part.LineSegment(App.Vector(2, 3.2, 0), App.Vector(2, 4.3, 0)),
    Part.LineSegment(App.Vector(2, 4.3, 0), App.Vector(3.5, 4.3, 0)),
    Part.LineSegment(App.Vector(3.5, 4.3, 0), App.Vector(7, 5.3, 0)),
    Part.LineSegment(App.Vector(7, 5.3, 0), App.Vector(7, 8.1, 0)),
    Part.LineSegment(App.Vector(7, 8.1, 0), App.Vector(3.5, 9, 0)),
], False)
sketch17.addConstraint([
    Sketcher.Constraint("Coincident", 0, 2, 1, 1),
    Sketcher.Constraint("Coincident", 1, 2, 2, 1),
    Sketcher.Constraint("Coincident", 2, 2, 3, 1),
    Sketcher.Constraint("Coincident", 3, 2, 4, 1),
    Sketcher.Constraint("Coincident", 4, 2, 5, 1),
    Sketcher.Constraint("Coincident", 5, 2, 6, 1),
    Sketcher.Constraint("Coincident", 6, 2, 7, 1),
    Sketcher.Constraint("Coincident", 7, 2, 0, 1),
    Sketcher.Constraint("Horizontal", 0),
    Sketcher.Constraint("Vertical", 1),
    Sketcher.Constraint("Horizontal", 2),
    Sketcher.Constraint("Vertical", 3),
    Sketcher.Constraint("Horizontal", 4),
    Sketcher.Constraint("Vertical", 6),
    Sketcher.Constraint("PointOnObject", 0, 2, -2),
    Sketcher.Constraint("Vertical", 4, 2, 7, 2),
    Sketcher.Constraint("Equal", 5, 7),
    Sketcher.Constraint("DistanceX", 2, 1, 2, 2, Q("2 mm")),
    Sketcher.Constraint("Angle", 5, Q("15 deg")),
    Sketcher.Constraint("DistanceX", 0, 2, 0, 1, Q("3.5 mm")),
    Sketcher.Constraint("DistanceY", 1, 2, 1, 1, Q("5.8 mm")),
    Sketcher.Constraint("DistanceY", -1, 1, 0, 2, Q("9 mm")),
    Sketcher.Constraint("DistanceX", -1, 1, 5, 2, Q("7 mm")),
    Sketcher.Constraint("DistanceY", 3, 1, 3, 2, Q("1.15 mm")),
])
revolution2 = body.newObject("PartDesign::Revolution", "Revolution001")
revolution2.Profile = sketch17
revolution2.ReferenceAxis = (sketch17, ["V_Axis"])
revolution2.Angle = 360

sketch18 = body.newObject("Sketcher::SketchObject", "Sketch017")
sketch18.AttachmentSupport = (doc.getObject("XY_Plane"), [""])
sketch18.MapMode = "FlatFace"
sketch18.addGeometry([
    Part.Circle(App.Vector(5, 0, 0), App.Vector(0, 0, 1), 8),
    Part.LineSegment(App.Vector(1.5, -2, 0), App.Vector(1.5, 2, 0)),
    Part.LineSegment(App.Vector(1.5, 2, 0), App.Vector(5, 4, 0)),
    Part.LineSegment(App.Vector(5, 4, 0), App.Vector(8.5, 2, 0)),
    Part.LineSegment(App.Vector(8.5, 2, 0), App.Vector(8.5, -2, 0)),
    Part.LineSegment(App.Vector(8.5, -2, 0), App.Vector(5, -4, 0)),
    Part.LineSegment(App.Vector(5, -4, 0), App.Vector(1.5, -2, 0)),
], False)
sketch18.addConstraint([
    Sketcher.Constraint("Coincident", 1, 2, 2, 1),
    Sketcher.Constraint("Coincident", 2, 2, 3, 1),
    Sketcher.Constraint("Coincident", 3, 2, 4, 1),
    Sketcher.Constraint("Coincident", 4, 2, 5, 1),
    Sketcher.Constraint("Coincident", 5, 2, 6, 1),
    Sketcher.Constraint("Coincident", 6, 2, 1, 1),
    Sketcher.Constraint("Vertical", 1),
    Sketcher.Constraint("Vertical", 4),
    Sketcher.Constraint("Symmetric", 2, 2, 5, 2, -1),
    Sketcher.Constraint("PointOnObject", 0, 3, -1),
    Sketcher.Constraint("Parallel", 2, 5),
    Sketcher.Constraint("Parallel", 3, 6),
    Sketcher.Constraint("Horizontal", 1, 2, 3, 2),
    Sketcher.Constraint("Horizontal", 4, 2, 6, 2),
    Sketcher.Constraint("Vertical", 0, 3, 2, 2),
    Sketcher.Constraint("Diameter", 0, Q("16 mm")),
    Sketcher.Constraint("Angle", 2, Q("30 deg")),
    Sketcher.Constraint("DistanceX", -1, 1, 0, 3, Q("5 mm")),
    Sketcher.Constraint("DistanceX", 1, 2, 3, 2, Q("7 mm")),
    Sketcher.Constraint("DistanceY", 1, 1, 1, 2, Q("4.041452 mm")),
])
pocket1 = body.newObject("PartDesign::Pocket", "Pocket")
pocket1.Profile = sketch18
pocket1.Length = 9
pocket1.Reversed = True

doc.recompute()
